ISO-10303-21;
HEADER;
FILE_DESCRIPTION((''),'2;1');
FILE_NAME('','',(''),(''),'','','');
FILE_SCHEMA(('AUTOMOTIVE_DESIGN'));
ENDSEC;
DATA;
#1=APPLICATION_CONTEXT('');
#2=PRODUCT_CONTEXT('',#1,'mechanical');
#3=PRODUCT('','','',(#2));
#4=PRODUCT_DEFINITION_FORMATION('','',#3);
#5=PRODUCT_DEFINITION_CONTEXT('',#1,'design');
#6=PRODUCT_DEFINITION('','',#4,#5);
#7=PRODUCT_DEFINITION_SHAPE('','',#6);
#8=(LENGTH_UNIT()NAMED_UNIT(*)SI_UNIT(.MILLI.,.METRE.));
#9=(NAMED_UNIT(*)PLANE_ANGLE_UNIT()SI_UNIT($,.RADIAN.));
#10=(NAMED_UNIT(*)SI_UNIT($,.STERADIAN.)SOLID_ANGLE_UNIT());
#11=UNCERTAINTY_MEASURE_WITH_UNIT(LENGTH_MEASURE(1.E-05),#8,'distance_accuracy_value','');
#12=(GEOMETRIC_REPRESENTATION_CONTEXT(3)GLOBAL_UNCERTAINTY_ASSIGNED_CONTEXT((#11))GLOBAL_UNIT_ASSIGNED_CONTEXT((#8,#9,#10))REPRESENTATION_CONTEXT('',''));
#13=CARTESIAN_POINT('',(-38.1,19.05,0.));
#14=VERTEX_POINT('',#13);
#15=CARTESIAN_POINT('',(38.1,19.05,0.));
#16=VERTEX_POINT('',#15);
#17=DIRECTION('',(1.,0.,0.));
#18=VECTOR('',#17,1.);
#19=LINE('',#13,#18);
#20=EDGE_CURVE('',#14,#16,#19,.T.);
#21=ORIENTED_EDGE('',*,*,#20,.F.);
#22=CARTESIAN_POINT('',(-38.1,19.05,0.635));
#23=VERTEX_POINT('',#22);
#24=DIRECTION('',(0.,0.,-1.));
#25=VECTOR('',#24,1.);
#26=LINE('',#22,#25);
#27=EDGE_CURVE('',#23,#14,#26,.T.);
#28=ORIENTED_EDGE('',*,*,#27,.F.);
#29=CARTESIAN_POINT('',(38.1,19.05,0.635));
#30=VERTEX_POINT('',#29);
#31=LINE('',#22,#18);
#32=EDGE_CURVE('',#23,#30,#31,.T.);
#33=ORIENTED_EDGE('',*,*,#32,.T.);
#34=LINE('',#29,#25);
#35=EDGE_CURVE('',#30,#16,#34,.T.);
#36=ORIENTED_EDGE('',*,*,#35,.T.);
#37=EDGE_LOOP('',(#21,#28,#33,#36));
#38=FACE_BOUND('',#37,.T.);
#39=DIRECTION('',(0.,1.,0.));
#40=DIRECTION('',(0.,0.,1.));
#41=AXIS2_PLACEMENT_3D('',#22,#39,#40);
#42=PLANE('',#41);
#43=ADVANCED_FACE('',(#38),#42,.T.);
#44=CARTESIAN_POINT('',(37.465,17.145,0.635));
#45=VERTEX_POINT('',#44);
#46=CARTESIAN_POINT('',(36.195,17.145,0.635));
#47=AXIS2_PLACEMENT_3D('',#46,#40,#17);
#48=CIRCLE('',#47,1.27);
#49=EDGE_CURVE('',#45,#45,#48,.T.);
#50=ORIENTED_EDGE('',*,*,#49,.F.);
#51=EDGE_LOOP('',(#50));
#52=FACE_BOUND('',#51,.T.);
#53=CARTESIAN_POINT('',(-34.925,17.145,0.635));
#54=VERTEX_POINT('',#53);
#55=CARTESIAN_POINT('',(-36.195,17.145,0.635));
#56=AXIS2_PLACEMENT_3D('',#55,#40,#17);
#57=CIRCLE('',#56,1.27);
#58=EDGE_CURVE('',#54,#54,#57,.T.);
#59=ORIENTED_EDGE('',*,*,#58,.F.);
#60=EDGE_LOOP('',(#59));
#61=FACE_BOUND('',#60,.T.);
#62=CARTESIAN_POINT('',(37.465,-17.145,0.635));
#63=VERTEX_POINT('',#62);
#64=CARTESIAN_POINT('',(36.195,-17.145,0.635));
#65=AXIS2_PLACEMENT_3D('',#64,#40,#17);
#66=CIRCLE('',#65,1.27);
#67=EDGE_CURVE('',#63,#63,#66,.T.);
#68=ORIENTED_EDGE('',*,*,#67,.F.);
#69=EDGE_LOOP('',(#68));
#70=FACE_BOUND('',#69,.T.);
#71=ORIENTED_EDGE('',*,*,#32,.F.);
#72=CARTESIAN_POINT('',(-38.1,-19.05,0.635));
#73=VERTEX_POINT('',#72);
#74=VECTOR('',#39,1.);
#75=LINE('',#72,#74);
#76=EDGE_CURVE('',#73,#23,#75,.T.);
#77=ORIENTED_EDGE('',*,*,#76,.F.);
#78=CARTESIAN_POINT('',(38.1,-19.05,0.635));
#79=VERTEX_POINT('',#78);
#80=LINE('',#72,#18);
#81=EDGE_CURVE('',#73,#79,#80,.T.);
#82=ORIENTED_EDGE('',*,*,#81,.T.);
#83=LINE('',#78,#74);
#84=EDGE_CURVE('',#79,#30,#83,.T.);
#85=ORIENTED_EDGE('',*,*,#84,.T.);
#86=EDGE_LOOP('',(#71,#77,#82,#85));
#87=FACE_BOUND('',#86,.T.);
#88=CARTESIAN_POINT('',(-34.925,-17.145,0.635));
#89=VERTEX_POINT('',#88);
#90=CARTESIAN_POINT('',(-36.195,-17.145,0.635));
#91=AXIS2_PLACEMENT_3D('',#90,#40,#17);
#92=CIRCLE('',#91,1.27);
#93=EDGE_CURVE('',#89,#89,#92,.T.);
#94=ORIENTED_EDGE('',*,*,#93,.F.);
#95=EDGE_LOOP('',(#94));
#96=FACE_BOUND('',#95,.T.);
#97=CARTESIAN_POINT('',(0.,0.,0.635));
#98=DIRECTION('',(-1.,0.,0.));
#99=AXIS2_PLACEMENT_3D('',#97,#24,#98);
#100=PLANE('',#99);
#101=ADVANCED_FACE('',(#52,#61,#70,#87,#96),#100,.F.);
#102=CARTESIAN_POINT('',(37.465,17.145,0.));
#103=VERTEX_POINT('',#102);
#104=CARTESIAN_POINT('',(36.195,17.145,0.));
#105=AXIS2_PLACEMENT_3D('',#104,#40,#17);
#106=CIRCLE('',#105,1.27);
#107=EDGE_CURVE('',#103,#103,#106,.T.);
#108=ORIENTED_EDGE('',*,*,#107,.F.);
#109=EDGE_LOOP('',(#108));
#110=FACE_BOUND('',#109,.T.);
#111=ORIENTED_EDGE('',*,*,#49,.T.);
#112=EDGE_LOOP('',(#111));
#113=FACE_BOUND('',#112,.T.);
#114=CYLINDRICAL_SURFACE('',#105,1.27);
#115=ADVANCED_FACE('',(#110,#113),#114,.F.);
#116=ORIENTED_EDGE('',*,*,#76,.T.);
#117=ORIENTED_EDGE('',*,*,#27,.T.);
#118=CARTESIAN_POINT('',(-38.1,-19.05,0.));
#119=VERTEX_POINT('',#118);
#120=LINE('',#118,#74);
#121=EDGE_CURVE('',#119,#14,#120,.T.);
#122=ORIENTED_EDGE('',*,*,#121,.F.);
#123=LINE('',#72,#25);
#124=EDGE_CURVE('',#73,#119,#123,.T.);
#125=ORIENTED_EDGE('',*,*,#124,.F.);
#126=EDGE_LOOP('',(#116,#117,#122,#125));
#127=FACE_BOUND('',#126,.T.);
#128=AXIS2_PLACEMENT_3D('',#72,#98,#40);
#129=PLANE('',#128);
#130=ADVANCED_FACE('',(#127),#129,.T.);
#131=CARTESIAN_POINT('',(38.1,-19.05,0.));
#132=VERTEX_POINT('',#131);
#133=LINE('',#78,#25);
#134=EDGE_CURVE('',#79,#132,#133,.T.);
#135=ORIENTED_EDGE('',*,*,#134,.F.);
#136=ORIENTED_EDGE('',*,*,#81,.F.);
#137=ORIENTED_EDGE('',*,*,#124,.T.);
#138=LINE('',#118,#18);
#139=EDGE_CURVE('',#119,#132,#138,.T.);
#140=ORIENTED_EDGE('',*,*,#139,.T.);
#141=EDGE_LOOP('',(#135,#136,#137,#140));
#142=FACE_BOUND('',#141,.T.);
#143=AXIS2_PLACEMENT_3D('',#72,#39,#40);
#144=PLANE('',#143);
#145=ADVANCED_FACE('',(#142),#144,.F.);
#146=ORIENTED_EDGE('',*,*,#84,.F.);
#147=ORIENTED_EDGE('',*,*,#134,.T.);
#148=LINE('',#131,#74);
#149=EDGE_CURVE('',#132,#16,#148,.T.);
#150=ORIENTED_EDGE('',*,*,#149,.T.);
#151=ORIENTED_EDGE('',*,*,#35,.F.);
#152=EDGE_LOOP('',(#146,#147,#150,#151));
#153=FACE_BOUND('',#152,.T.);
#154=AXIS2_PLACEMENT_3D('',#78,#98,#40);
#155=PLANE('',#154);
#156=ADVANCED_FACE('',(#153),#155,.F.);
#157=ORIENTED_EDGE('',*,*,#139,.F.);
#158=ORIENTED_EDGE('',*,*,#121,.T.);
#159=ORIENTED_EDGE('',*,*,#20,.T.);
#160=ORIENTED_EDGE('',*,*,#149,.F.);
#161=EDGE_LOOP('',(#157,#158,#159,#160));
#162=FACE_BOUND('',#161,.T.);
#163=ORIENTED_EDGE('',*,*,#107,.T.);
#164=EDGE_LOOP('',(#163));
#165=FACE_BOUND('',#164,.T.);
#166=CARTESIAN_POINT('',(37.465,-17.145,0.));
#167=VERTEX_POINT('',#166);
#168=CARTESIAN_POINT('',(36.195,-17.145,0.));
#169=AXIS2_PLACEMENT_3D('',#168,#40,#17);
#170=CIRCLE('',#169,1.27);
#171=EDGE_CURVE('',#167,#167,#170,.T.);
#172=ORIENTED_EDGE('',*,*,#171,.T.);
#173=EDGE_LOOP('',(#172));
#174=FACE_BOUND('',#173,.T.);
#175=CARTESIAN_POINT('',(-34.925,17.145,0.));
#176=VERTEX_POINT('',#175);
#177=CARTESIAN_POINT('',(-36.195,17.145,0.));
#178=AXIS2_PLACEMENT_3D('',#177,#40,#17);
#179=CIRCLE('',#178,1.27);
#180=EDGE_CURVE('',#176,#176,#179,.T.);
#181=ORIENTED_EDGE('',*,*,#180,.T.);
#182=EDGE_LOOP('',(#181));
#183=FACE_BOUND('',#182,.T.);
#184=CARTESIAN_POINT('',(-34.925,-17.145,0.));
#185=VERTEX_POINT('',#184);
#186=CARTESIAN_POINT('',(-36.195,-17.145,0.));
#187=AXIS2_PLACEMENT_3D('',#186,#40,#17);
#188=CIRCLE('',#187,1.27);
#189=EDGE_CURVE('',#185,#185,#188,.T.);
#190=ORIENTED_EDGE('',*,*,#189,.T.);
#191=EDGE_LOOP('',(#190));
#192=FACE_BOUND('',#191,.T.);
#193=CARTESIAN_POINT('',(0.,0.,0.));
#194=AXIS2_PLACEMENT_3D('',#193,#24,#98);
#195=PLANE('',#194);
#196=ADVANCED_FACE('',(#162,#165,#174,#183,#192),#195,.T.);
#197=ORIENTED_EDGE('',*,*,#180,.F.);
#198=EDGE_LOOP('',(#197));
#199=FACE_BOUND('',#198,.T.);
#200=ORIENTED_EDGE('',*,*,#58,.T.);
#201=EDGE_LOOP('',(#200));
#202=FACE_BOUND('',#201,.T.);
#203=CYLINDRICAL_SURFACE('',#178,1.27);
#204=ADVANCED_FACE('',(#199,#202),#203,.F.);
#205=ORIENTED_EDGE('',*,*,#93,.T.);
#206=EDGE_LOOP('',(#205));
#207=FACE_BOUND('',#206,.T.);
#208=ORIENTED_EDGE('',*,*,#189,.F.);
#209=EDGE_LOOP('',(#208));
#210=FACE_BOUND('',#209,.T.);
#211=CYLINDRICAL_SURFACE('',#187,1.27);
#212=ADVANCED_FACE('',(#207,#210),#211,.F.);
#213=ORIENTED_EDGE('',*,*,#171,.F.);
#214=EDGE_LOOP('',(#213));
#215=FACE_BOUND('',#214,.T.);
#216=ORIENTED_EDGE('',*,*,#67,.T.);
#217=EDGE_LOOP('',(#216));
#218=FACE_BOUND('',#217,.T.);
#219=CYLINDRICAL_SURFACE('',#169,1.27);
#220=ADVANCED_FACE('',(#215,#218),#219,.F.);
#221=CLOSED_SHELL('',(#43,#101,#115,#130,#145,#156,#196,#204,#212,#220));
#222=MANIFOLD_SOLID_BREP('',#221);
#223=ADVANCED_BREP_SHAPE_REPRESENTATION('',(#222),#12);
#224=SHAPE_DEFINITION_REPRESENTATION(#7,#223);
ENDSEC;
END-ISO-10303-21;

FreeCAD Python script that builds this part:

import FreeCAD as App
import Part
import Sketcher
from FreeCAD import Vector
Q = App.Units.Quantity


def add_polygon(sketch, points):
    """Adds a closed chain of lines whose ends are joined by coincident constraints."""
    first, n = sketch.GeometryCount, len(points)
    for a, b in zip(points, points[1:] + points[:1]):
        sketch.addGeometry(Part.LineSegment(App.Vector(*a, 0), App.Vector(*b, 0)), False)
    for i in range(n):
        sketch.addConstraint(Sketcher.Constraint("Coincident", first + i, 2, first + (i + 1) % n, 1))

doc = App.newDocument("Part")
params = doc.addObject("Spreadsheet::Sheet", "Params")
for row, (alias, value) in enumerate([
    ("sketch1_width", "3 in"),
    ("sketch1_height", "1.5 in"),
    ("pad1_length", "0.025 in"),
    ("sketch2_diameter", "0.1 in"),
], start=1):
    params.set(f"A{row}", alias)
    params.set(f"B{row}", "=" + value)
    params.setAlias(f"B{row}", alias)

body = doc.addObject("PartDesign::Body", "Body")

# Sketch on XY plane
sketch1 = body.newObject("Sketcher::SketchObject", "Sketch")
sketch1.AttachmentSupport = (doc.getObject("XY_Plane"), [""])
sketch1.MapMode = "FlatFace"
add_polygon(sketch1, [(-38.1, 19.05), (-38.1, -19.05), (38.1, -19.05), (38.1, 19.05)])  # lines 0-3
sketch1.addConstraint(Sketcher.Constraint("Vertical", 0))
sketch1.addConstraint(Sketcher.Constraint("Horizontal", 1))
sketch1.addConstraint(Sketcher.Constraint("Vertical", 2))
sketch1.addConstraint(Sketcher.Constraint("Horizontal", 3))
sketch1.addConstraint(Sketcher.Constraint("Symmetric", 0, 2, 2, 2, -1, 1))
sketch1.addConstraint(Sketcher.Constraint("DistanceX", 1, 1, 1, 2, Q("3 in")))
sketch1.addConstraint(Sketcher.Constraint("DistanceY", 0, 2, 0, 1, Q("1.5 in")))
sketch1.setExpression("Constraints[9]", "Params.sketch1_width")
sketch1.setExpression("Constraints[10]", "Params.sketch1_height")
pad1 = body.newObject("PartDesign::Pad", "Pad")
pad1.Profile = sketch1
pad1.setExpression("Length", "Params.pad1_length")

# Sketch on XY plane
sketch2 = body.newObject("Sketcher::SketchObject", "Sketch001")
sketch2.AttachmentSupport = (doc.getObject("XY_Plane"), [""])
sketch2.MapMode = "FlatFace"
sketch2.AttachmentOffset = App.Placement(Vector(0, 0, 0.025 * 25.4), App.Rotation())
sketch2.addGeometry(Part.Circle(Vector(-36.195, 17.145, 0), Vector(0, 0, 1), 1.27), False)
sketch2.addGeometry(Part.Circle(Vector(-36.195, -17.145, 0), Vector(0, 0, 1), 1.27), False)
sketch2.addGeometry(Part.Circle(Vector(36.195, -17.145, 0), Vector(0, 0, 1), 1.27), False)
sketch2.addGeometry(Part.Circle(Vector(36.195, 17.145, 0), Vector(0, 0, 1), 1.27), False)
sketch2.addConstraint(Sketcher.Constraint("Equal", 0, 1))
sketch2.addConstraint(Sketcher.Constraint("Equal", 1, 2))
sketch2.addConstraint(Sketcher.Constraint("Equal", 2, 3))
sketch2.addConstraint(Sketcher.Constraint("Symmetric", 0, 3, 2, 3, -1, 1))
sketch2.addConstraint(Sketcher.Constraint("Symmetric", 1, 3, 3, 3, -1, 1))
sketch2.addConstraint(Sketcher.Constraint("Symmetric", 1, 3, 2, 3, -2))
sketch2.addConstraint(Sketcher.Constraint("Diameter", 0, Q("0.1 in")))
sketch2.addConstraint(Sketcher.Constraint("DistanceY", 1, 3, 0, 3, Q("1.35 in")))
sketch2.addConstraint(Sketcher.Constraint("DistanceX", 1, 3, 2, 3, Q("2.85 in")))
sketch2.setExpression("Constraints[6]", "Params.sketch2_diameter")
pocket1 = body.newObject("PartDesign::Pocket", "Pocket")
pocket1.Profile = sketch2
pocket1.Type = "ThroughAll"

doc.recompute()
